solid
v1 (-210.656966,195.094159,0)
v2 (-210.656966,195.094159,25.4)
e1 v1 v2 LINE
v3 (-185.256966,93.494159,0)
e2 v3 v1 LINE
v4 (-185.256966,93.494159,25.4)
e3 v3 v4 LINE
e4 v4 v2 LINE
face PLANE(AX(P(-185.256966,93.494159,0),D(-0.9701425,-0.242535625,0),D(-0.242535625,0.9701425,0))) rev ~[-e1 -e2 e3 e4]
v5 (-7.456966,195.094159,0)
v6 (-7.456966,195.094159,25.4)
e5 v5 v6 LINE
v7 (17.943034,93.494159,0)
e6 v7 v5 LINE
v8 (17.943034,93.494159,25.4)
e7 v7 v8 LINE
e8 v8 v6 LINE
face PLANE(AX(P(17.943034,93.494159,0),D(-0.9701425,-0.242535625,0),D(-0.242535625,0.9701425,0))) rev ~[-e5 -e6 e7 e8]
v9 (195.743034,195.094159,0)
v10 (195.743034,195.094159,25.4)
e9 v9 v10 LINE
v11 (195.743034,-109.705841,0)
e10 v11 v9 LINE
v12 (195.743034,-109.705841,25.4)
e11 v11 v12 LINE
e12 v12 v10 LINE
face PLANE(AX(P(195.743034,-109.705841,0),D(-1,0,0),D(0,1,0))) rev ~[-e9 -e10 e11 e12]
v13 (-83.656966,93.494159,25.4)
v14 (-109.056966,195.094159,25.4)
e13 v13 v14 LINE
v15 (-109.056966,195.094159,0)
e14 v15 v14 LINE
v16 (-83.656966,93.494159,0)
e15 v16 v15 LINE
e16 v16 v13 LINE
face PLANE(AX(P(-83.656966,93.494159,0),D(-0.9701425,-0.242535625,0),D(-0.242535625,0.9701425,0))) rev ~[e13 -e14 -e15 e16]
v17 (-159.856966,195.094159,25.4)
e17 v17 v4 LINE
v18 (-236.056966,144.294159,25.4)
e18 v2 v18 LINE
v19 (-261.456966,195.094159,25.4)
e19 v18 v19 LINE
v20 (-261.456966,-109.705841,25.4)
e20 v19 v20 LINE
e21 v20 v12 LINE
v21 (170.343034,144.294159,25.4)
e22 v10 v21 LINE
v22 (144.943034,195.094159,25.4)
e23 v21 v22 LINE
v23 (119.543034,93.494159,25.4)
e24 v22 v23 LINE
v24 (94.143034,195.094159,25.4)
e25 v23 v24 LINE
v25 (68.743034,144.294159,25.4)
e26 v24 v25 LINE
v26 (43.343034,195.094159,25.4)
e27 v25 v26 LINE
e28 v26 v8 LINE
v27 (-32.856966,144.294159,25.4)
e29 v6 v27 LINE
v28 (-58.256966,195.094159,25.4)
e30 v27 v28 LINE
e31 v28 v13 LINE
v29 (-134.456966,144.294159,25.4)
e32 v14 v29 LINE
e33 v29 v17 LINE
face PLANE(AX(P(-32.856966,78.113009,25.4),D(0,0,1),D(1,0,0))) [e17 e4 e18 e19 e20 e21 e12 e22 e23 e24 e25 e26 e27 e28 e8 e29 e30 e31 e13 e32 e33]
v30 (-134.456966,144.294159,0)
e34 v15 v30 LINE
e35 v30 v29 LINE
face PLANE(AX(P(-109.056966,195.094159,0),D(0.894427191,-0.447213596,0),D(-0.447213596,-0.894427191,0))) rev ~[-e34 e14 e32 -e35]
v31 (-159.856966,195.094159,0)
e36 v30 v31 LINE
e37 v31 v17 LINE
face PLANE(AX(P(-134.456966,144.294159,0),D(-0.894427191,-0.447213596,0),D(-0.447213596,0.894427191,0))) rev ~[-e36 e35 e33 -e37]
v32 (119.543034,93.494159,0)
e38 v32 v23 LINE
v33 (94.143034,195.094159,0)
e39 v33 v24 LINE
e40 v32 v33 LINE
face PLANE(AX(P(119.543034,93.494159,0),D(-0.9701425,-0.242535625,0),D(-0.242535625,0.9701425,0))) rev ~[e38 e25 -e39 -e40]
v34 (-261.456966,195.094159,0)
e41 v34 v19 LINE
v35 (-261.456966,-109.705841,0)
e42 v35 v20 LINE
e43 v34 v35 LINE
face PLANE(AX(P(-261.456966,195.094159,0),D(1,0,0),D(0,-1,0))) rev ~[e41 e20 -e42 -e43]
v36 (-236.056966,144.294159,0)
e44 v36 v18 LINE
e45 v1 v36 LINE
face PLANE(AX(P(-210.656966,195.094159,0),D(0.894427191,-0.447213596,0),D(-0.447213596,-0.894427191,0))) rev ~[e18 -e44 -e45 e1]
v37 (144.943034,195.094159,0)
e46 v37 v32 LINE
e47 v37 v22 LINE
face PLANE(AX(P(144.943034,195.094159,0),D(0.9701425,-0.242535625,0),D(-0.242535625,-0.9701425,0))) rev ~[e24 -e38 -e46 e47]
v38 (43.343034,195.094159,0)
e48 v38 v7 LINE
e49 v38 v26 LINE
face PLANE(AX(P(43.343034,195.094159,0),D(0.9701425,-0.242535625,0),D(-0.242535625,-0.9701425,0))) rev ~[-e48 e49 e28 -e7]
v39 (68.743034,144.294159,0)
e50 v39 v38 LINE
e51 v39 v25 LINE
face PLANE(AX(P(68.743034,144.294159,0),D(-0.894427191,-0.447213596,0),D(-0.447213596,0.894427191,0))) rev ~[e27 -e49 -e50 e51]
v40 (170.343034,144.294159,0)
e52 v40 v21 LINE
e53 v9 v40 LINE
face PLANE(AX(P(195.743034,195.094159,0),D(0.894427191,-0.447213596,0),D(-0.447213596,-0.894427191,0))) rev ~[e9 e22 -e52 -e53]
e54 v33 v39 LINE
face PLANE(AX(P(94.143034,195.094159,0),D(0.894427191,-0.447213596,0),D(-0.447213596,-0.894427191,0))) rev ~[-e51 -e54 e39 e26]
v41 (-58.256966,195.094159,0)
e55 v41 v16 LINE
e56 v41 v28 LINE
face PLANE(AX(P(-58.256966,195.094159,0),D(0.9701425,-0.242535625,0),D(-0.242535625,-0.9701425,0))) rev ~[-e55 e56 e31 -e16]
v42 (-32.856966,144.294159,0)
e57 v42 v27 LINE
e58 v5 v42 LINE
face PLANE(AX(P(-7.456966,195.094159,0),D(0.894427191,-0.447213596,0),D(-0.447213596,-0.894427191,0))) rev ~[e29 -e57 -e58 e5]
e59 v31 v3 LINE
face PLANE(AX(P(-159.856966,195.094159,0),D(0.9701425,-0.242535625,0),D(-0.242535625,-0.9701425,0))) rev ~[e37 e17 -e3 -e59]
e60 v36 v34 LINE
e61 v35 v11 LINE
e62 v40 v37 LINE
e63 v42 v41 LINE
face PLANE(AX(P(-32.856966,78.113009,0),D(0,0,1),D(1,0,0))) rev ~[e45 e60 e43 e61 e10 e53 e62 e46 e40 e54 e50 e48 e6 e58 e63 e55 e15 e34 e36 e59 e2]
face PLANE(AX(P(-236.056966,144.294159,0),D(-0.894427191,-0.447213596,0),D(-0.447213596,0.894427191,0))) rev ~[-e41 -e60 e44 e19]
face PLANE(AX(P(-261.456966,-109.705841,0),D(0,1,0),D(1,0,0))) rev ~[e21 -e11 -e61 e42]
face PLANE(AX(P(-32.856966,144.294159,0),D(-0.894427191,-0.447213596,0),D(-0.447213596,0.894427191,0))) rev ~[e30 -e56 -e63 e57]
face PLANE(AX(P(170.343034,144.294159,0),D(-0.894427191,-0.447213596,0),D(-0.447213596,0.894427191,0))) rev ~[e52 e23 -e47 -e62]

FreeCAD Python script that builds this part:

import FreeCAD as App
import Part
import Sketcher
from FreeCAD import Vector
Q = App.Units.Quantity

doc = App.newDocument("Part")
body = doc.addObject("PartDesign::Body", "Body")

# Sketch on XY plane
sketch1 = doc.addObject("Sketcher::SketchObject", "Sketch")
body.addObject(sketch1)
sketch1.AttachmentSupport = (doc.XY_Plane, [""])
sketch1.MapMode = "FlatFace"
sketch1.addGeometry(Part.LineSegment(Vector(-261.456966, 195.094159, 0), Vector(-261.456966, -109.705841, 0)), False)
sketch1.addGeometry(Part.LineSegment(Vector(-261.456966, -109.705841, 0), Vector(195.743034, -109.705841, 0)), False)
sketch1.addGeometry(Part.LineSegment(Vector(195.743034, -109.705841, 0), Vector(195.743034, 195.094159, 0)), False)
sketch1.addGeometry(Part.LineSegment(Vector(195.743034, 195.094159, 0), Vector(170.343034, 144.294159, 0)), False)
sketch1.addGeometry(Part.LineSegment(Vector(170.343034, 144.294159, 0), Vector(144.943034, 195.094159, 0)), False)
sketch1.addGeometry(Part.LineSegment(Vector(144.943034, 195.094159, 0), Vector(119.543034, 93.494159, 0)), False)
sketch1.addGeometry(Part.LineSegment(Vector(119.543034, 93.494159, 0), Vector(94.143034, 195.094159, 0)), False)
sketch1.addGeometry(Part.LineSegment(Vector(94.143034, 195.094159, 0), Vector(68.743034, 144.294159, 0)), False)
sketch1.addGeometry(Part.LineSegment(Vector(68.743034, 144.294159, 0), Vector(43.343034, 195.094159, 0)), False)
sketch1.addGeometry(Part.LineSegment(Vector(43.343034, 195.094159, 0), Vector(17.943034, 93.494159, 0)), False)
sketch1.addGeometry(Part.LineSegment(Vector(17.943034, 93.494159, 0), Vector(-7.456966, 195.094159, 0)), False)
sketch1.addGeometry(Part.LineSegment(Vector(-7.456966, 195.094159, 0), Vector(-32.856966, 144.294159, 0)), False)
sketch1.addGeometry(Part.LineSegment(Vector(-32.856966, 144.294159, 0), Vector(-58.256966, 195.094159, 0)), False)
sketch1.addGeometry(Part.LineSegment(Vector(-58.256966, 195.094159, 0), Vector(-83.656966, 93.494159, 0)), False)
sketch1.addGeometry(Part.LineSegment(Vector(-83.656966, 93.494159, 0), Vector(-109.056966, 195.094159, 0)), False)
sketch1.addGeometry(Part.LineSegment(Vector(-109.056966, 195.094159, 0), Vector(-134.456966, 144.294159, 0)), False)
sketch1.addGeometry(Part.LineSegment(Vector(-134.456966, 144.294159, 0), Vector(-159.856966, 195.094159, 0)), False)
sketch1.addGeometry(Part.LineSegment(Vector(-159.856966, 195.094159, 0), Vector(-185.256966, 93.494159, 0)), False)
sketch1.addGeometry(Part.LineSegment(Vector(-185.256966, 93.494159, 0), Vector(-210.656966, 195.094159, 0)), False)
sketch1.addGeometry(Part.LineSegment(Vector(-210.656966, 195.094159, 0), Vector(-236.056966, 144.294159, 0)), False)
sketch1.addGeometry(Part.LineSegment(Vector(-236.056966, 144.294159, 0), Vector(-261.456966, 195.094159, 0)), False)
sketch1.addConstraint(Sketcher.Constraint("Coincident", 0, 2, 1, 1))
sketch1.addConstraint(Sketcher.Constraint("Coincident", 1, 2, 2, 1))
sketch1.addConstraint(Sketcher.Constraint("Coincident", 2, 2, 3, 1))
sketch1.addConstraint(Sketcher.Constraint("Coincident", 3, 2, 4, 1))
sketch1.addConstraint(Sketcher.Constraint("Coincident", 4, 2, 5, 1))
sketch1.addConstraint(Sketcher.Constraint("Coincident", 5, 2, 6, 1))
sketch1.addConstraint(Sketcher.Constraint("Coincident", 6, 2, 7, 1))
sketch1.addConstraint(Sketcher.Constraint("Coincident", 7, 2, 8, 1))
sketch1.addConstraint(Sketcher.Constraint("Coincident", 8, 2, 9, 1))
sketch1.addConstraint(Sketcher.Constraint("Coincident", 9, 2, 10, 1))
sketch1.addConstraint(Sketcher.Constraint("Coincident", 10, 2, 11, 1))
sketch1.addConstraint(Sketcher.Constraint("Coincident", 11, 2, 12, 1))
sketch1.addConstraint(Sketcher.Constraint("Coincident", 12, 2, 13, 1))
sketch1.addConstraint(Sketcher.Constraint("Coincident", 13, 2, 14, 1))
sketch1.addConstraint(Sketcher.Constraint("Coincident", 14, 2, 15, 1))
sketch1.addConstraint(Sketcher.Constraint("Coincident", 15, 2, 16, 1))
sketch1.addConstraint(Sketcher.Constraint("Coincident", 16, 2, 17, 1))
sketch1.addConstraint(Sketcher.Constraint("Coincident", 17, 2, 18, 1))
sketch1.addConstraint(Sketcher.Constraint("Coincident", 18, 2, 19, 1))
sketch1.addConstraint(Sketcher.Constraint("Coincident", 19, 2, 20, 1))
sketch1.addConstraint(Sketcher.Constraint("Coincident", 20, 2, 0, 1))
sketch1.addConstraint(Sketcher.Constraint("Vertical", 0))
sketch1.addConstraint(Sketcher.Constraint("Horizontal", 1))
sketch1.addConstraint(Sketcher.Constraint("Vertical", 2))
sketch1.addConstraint(Sketcher.Constraint("Parallel", 3, 7))
sketch1.addConstraint(Sketcher.Constraint("Parallel", 4, 8))
sketch1.addConstraint(Sketcher.Constraint("Parallel", 5, 9))
sketch1.addConstraint(Sketcher.Constraint("Parallel", 6, 10))
sketch1.addConstraint(Sketcher.Constraint("Parallel", 7, 11))
sketch1.addConstraint(Sketcher.Constraint("Parallel", 8, 12))
sketch1.addConstraint(Sketcher.Constraint("Parallel", 9, 13))
sketch1.addConstraint(Sketcher.Constraint("Parallel", 10, 14))
sketch1.addConstraint(Sketcher.Constraint("Parallel", 11, 15))
sketch1.addConstraint(Sketcher.Constraint("Parallel", 12, 16))
sketch1.addConstraint(Sketcher.Constraint("Parallel", 13, 17))
sketch1.addConstraint(Sketcher.Constraint("Parallel", 14, 18))
sketch1.addConstraint(Sketcher.Constraint("Parallel", 15, 19))
sketch1.addConstraint(Sketcher.Constraint("Parallel", 16, 20))
sketch1.addConstraint(Sketcher.Constraint("Horizontal", 2, 2, 4, 2))
sketch1.addConstraint(Sketcher.Constraint("Horizontal", 4, 2, 6, 2))
sketch1.addConstraint(Sketcher.Constraint("Horizontal", 3, 2, 7, 2))
sketch1.addConstraint(Sketcher.Constraint("Horizontal", 6, 2, 8, 2))
sketch1.addConstraint(Sketcher.Constraint("Horizontal", 5, 2, 9, 2))
sketch1.addConstraint(Sketcher.Constraint("Horizontal", 8, 2, 10, 2))
sketch1.addConstraint(Sketcher.Constraint("Horizontal", 7, 2, 11, 2))
sketch1.addConstraint(Sketcher.Constraint("Horizontal", 10, 2, 12, 2))
sketch1.addConstraint(Sketcher.Constraint("Horizontal", 9, 2, 13, 2))
sketch1.addConstraint(Sketcher.Constraint("Horizontal", 12, 2, 14, 2))
sketch1.addConstraint(Sketcher.Constraint("Horizontal", 11, 2, 15, 2))
sketch1.addConstraint(Sketcher.Constraint("Horizontal", 14, 2, 16, 2))
sketch1.addConstraint(Sketcher.Constraint("Horizontal", 13, 2, 17, 2))
sketch1.addConstraint(Sketcher.Constraint("Horizontal", 16, 2, 18, 2))
sketch1.addConstraint(Sketcher.Constraint("Horizontal", 15, 2, 19, 2))
sketch1.addConstraint(Sketcher.Constraint("Horizontal", 18, 2, 20, 2))
sketch1.addConstraint(Sketcher.Constraint("Equal", 3, 4))
sketch1.addConstraint(Sketcher.Constraint("Equal", 5, 6))
sketch1.addConstraint(Sketcher.Constraint("DistanceX", 1, 1, 1, 2, Q("18 in")))
sketch1.addConstraint(Sketcher.Constraint("DistanceY", 0, 2, 0, 1, Q("12 in")))
sketch1.addConstraint(Sketcher.Constraint("DistanceX", 3, 2, 2, 2, Q("1 in")))
sketch1.addConstraint(Sketcher.Constraint("DistanceY", 3, 2, 2, 2, Q("2 in")))
sketch1.addConstraint(Sketcher.Constraint("DistanceY", 5, 2, 3, 2, Q("2 in")))
sketch1.addConstraint(Sketcher.Constraint("DistanceY", 0, 2, -1, 1, 109.705841))
sketch1.addConstraint(Sketcher.Constraint("DistanceX", 0, 2, -1, 1, 261.456966))
pad1 = doc.addObject("PartDesign::Pad", "Pad")
body.addObject(pad1)
pad1.Profile = sketch1
pad1.Length = Q("1 in")

doc.recompute()
